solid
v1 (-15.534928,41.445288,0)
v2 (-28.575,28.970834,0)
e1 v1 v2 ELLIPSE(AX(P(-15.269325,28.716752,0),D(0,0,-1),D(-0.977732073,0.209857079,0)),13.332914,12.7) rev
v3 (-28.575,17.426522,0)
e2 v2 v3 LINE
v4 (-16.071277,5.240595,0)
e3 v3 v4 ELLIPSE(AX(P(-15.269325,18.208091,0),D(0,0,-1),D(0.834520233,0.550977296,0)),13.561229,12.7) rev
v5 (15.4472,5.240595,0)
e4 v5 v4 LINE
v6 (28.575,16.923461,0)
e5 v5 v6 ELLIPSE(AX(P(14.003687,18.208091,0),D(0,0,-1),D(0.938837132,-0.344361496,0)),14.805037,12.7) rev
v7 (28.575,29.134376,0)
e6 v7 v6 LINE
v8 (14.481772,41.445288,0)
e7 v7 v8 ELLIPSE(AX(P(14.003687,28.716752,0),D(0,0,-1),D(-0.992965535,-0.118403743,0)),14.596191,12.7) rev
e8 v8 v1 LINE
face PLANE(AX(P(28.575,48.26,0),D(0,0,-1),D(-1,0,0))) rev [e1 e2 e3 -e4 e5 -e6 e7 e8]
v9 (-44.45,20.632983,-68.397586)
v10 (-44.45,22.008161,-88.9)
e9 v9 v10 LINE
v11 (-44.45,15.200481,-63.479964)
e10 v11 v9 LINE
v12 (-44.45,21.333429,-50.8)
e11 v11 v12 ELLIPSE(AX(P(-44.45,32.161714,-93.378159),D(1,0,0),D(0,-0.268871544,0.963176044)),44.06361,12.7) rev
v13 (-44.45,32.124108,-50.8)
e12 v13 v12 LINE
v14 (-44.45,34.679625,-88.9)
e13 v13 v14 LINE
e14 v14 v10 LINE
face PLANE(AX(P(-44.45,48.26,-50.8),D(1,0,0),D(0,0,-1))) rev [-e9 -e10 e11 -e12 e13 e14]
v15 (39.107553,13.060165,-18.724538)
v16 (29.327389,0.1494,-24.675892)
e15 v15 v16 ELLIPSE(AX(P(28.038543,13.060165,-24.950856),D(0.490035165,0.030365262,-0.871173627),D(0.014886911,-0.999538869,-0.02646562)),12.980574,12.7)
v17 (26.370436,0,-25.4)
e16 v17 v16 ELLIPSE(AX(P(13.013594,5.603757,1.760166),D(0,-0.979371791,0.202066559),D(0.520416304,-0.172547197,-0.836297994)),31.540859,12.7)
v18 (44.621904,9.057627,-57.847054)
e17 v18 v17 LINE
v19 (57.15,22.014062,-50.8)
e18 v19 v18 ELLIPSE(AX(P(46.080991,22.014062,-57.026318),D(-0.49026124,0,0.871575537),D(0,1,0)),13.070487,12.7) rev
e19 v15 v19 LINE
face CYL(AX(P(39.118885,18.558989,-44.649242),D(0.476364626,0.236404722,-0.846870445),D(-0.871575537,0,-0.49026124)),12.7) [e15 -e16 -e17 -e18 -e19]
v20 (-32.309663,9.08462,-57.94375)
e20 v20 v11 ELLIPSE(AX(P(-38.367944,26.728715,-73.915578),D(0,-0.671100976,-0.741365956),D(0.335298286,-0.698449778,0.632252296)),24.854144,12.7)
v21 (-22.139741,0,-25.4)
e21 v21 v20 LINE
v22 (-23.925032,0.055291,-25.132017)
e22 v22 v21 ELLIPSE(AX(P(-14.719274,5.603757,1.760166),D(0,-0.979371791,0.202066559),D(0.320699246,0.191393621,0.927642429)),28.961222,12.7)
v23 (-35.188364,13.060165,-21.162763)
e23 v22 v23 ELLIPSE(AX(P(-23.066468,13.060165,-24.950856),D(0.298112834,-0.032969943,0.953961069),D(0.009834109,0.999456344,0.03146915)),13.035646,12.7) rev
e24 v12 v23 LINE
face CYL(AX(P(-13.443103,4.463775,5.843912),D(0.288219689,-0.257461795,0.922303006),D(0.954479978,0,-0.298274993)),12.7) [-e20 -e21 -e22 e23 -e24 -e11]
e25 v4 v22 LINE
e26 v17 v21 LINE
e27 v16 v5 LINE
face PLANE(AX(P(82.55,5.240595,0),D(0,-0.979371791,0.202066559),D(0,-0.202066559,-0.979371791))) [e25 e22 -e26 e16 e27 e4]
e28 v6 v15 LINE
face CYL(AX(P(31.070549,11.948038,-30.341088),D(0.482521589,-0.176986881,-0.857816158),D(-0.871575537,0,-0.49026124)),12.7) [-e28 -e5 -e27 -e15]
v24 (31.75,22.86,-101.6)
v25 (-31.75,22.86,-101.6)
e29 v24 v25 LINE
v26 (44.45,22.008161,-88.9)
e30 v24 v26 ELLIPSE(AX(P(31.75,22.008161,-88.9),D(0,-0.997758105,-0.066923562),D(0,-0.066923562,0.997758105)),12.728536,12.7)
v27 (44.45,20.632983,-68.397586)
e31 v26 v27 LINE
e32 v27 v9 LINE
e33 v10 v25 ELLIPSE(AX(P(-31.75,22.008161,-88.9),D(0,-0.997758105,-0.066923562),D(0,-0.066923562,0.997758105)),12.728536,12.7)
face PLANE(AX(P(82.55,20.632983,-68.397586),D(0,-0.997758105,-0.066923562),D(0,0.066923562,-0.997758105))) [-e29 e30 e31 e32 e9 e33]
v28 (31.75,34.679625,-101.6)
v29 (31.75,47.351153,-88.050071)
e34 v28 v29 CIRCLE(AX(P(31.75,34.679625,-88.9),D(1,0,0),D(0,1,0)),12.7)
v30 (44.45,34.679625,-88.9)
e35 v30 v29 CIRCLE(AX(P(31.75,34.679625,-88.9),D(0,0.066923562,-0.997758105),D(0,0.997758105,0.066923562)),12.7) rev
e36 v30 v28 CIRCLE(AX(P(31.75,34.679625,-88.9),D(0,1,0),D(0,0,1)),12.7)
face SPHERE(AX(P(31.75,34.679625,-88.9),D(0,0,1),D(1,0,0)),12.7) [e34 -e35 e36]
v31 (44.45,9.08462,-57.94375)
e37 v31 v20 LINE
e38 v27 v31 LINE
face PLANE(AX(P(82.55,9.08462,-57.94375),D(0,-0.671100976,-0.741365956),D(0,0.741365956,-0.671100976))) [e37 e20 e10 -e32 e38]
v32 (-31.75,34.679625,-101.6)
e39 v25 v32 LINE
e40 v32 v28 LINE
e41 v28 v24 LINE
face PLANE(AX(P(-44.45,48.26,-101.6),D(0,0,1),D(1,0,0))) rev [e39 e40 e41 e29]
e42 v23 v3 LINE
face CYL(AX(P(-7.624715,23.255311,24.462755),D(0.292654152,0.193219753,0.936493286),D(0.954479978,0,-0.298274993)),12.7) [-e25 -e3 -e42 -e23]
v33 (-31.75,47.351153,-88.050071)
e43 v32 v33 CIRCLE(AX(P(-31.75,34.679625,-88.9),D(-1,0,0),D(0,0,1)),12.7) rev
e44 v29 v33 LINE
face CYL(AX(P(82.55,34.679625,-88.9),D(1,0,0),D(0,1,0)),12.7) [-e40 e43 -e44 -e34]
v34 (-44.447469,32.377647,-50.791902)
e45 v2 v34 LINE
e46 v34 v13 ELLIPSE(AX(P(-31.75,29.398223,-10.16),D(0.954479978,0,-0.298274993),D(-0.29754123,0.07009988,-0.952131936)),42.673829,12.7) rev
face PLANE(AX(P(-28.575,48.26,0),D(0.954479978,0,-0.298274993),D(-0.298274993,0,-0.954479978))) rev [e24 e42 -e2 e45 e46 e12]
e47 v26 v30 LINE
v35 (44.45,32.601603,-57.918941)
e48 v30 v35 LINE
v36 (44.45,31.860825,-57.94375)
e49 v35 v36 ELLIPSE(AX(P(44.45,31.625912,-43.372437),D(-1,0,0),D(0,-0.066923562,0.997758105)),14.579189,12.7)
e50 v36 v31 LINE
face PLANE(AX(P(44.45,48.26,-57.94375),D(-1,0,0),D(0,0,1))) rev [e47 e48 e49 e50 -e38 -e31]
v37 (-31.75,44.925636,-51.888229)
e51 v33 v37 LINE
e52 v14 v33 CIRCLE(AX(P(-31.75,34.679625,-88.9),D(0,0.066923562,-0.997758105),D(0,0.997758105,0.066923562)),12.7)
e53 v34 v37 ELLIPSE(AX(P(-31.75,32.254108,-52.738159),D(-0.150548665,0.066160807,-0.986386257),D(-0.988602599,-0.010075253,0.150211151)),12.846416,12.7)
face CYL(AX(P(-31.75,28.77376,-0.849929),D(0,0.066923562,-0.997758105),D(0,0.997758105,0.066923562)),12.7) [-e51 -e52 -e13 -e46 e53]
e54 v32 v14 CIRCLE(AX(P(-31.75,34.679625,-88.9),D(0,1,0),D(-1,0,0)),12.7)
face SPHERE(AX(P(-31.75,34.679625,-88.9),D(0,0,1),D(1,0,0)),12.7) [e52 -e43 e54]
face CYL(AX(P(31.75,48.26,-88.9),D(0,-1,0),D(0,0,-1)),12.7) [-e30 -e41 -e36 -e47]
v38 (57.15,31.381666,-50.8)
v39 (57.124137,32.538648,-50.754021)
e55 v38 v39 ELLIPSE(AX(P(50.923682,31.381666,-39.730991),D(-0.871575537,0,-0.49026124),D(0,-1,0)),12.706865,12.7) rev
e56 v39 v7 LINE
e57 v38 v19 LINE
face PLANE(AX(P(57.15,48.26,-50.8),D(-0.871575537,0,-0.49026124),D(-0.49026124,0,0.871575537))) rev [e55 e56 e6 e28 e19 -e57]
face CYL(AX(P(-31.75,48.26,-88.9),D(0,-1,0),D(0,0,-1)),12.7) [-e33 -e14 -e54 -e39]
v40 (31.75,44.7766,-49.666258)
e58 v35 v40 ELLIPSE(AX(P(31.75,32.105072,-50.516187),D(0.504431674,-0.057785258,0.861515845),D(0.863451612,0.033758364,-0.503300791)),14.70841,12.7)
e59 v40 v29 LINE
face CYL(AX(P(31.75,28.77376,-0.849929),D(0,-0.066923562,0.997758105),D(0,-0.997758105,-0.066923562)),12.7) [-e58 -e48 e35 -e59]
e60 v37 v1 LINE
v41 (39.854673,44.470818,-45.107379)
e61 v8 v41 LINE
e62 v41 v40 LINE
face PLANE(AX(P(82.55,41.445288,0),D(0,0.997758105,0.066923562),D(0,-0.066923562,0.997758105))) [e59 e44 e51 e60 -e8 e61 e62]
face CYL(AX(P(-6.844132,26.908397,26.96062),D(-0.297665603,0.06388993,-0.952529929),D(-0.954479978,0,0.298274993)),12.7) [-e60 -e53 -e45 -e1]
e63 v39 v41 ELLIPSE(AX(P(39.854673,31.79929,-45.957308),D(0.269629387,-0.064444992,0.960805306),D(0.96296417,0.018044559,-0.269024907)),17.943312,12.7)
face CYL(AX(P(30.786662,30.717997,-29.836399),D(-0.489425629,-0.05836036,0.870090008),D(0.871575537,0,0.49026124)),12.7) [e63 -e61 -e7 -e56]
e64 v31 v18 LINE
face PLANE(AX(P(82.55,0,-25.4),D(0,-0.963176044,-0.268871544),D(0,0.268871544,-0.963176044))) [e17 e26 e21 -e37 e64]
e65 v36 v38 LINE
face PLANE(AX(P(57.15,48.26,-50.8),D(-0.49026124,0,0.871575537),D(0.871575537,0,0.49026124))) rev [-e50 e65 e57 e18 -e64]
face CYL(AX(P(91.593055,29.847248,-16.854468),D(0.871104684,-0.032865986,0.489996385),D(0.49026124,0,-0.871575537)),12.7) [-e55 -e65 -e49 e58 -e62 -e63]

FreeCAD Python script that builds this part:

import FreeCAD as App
import Part
import Sketcher
Q = App.Units.Quantity


def edges_at(feature, points):
    """Names of the edges that pass closest to the given points."""
    edges = feature.Shape.Edges
    near = lambda p: min(range(len(edges)), key=lambda i: edges[i].distToShape(Part.Vertex(*p))[0])
    return sorted({f"Edge{near(p) + 1}" for p in points})

doc = App.newDocument("Part")
params = doc.addObject("Spreadsheet::Sheet", "Params")
for row, (alias, value) in enumerate([
    ("sketch1_height", "2 in"),
    ("sketch1_width", "3.5 in"),
    ("sketch1_width2", "2.25 in"),
    ("sketch1_height2", "1.71875 in"),
    ("pad1_length", "1.9 in"),
    ("sketch2_width", "1 in"),
    ("pocket1_length", "10 in"),
    ("fillet_radius", "0.5 in"),
    ("fillet2_radius", "0.5 in"),
], start=1):
    params.set(f"A{row}", alias)
    params.set(f"B{row}", "=" + value)
    params.setAlias(f"B{row}", alias)

body = doc.addObject("PartDesign::Body", "Body")

sketch1 = body.newObject("Sketcher::SketchObject", "Sketch")
sketch1.AttachmentSupport = (doc.getObject("XZ_Plane"), [""])
sketch1.MapMode = "FlatFace"
sketch1.addGeometry(Part.LineSegment(App.Vector(44, -102, 0), App.Vector(-44, -102, 0)), False)
sketch1.addGeometry(Part.LineSegment(App.Vector(-44, -102, 0), App.Vector(-44, -51, 0)), False)
sketch1.addGeometry(Part.LineSegment(App.Vector(-44, -51, 0), App.Vector(-29, 0, 0)), False)
sketch1.addGeometry(Part.LineSegment(App.Vector(-29, 0, 0), App.Vector(29, 0, 0)), False)
sketch1.addGeometry(Part.LineSegment(App.Vector(29, 0, 0), App.Vector(57, -51, 0)), False)
sketch1.addGeometry(Part.LineSegment(App.Vector(57, -51, 0), App.Vector(44, -58, 0)), False)
sketch1.addGeometry(Part.LineSegment(App.Vector(44, -58, 0), App.Vector(44, -102, 0)), False)
sketch1.addConstraint(Sketcher.Constraint("Coincident", 0, 2, 1, 1))
sketch1.addConstraint(Sketcher.Constraint("Coincident", 1, 2, 2, 1))
sketch1.addConstraint(Sketcher.Constraint("Coincident", 2, 2, 3, 1))
sketch1.addConstraint(Sketcher.Constraint("Coincident", 3, 2, 4, 1))
sketch1.addConstraint(Sketcher.Constraint("Coincident", 4, 2, 5, 1))
sketch1.addConstraint(Sketcher.Constraint("Coincident", 5, 2, 6, 1))
sketch1.addConstraint(Sketcher.Constraint("Coincident", 6, 2, 0, 1))
sketch1.addConstraint(Sketcher.Constraint("Horizontal", 0))
sketch1.addConstraint(Sketcher.Constraint("Vertical", 1))
sketch1.addConstraint(Sketcher.Constraint("Horizontal", 3))
sketch1.addConstraint(Sketcher.Constraint("Vertical", 6))
sketch1.addConstraint(Sketcher.Constraint("Symmetric", 2, 2, 3, 2, -1, 1))
sketch1.addConstraint(Sketcher.Constraint("Perpendicular", 4, 5))
sketch1.addConstraint(Sketcher.Constraint("Horizontal", 1, 2, 4, 2))
sketch1.addConstraint(Sketcher.Constraint("DistanceY", 1, 1, 1, 2, Q("2 in")))
sketch1.addConstraint(Sketcher.Constraint("DistanceX", 0, 2, 0, 1, Q("3.5 in")))
sketch1.addConstraint(Sketcher.Constraint("DistanceY", 0, 2, -1, 1, Q("4 in")))
sketch1.addConstraint(Sketcher.Constraint("DistanceX", 1, 2, 4, 2, Q("4 in")))
sketch1.addConstraint(Sketcher.Constraint("DistanceX", 3, 1, 3, 2, Q("2.25 in")))
sketch1.addConstraint(Sketcher.Constraint("DistanceY", 6, 2, 6, 1, Q("1.71875 in")))
sketch1.setExpression("Constraints[14]", "Params.sketch1_height")
sketch1.setExpression("Constraints[15]", "Params.sketch1_width")
sketch1.setExpression("Constraints[18]", "Params.sketch1_width2")
sketch1.setExpression("Constraints[19]", "Params.sketch1_height2")
pad1 = body.newObject("PartDesign::Pad", "Pad")
pad1.Profile = sketch1
pad1.setExpression("Length", "Params.pad1_length")
pad1.Reversed = True

sketch2 = body.newObject("Sketcher::SketchObject", "Sketch001")
sketch2.AttachmentSupport = (doc.getObject("YZ_Plane"), [""])
sketch2.MapMode = "FlatFace"
sketch2.AttachmentOffset = App.Placement(App.Vector(0, 0, -1.75 * 25.4), App.Rotation())
sketch2.addGeometry(Part.LineSegment(App.Vector(64.417, -117.757, 0), App.Vector(-16.157, -117.757, 0)), False)
sketch2.addGeometry(Part.LineSegment(App.Vector(-16.157, -117.757, 0), App.Vector(-16.157, 16.157, 0)), False)
sketch2.addGeometry(Part.LineSegment(App.Vector(-16.157, 16.157, 0), App.Vector(64.417, 16.157, 0)), False)
sketch2.addGeometry(Part.LineSegment(App.Vector(64.417, 16.157, 0), App.Vector(64.417, -117.757, 0)), False)
sketch2.addGeometry(Part.LineSegment(App.Vector(48.26, -101.6, 0), App.Vector(41.445288, 0, 0)), False)
sketch2.addGeometry(Part.LineSegment(App.Vector(41.445288, 0, 0), App.Vector(5.240595, 0, 0)), False)
sketch2.addGeometry(Part.LineSegment(App.Vector(5.240595, 0, 0), App.Vector(0, -25.4, 0)), False)
sketch2.addGeometry(Part.LineSegment(App.Vector(0, -25.4, 0), App.Vector(9.08462, -57.94375, 0)), False)
sketch2.addGeometry(Part.LineSegment(App.Vector(9.08462, -57.94375, 0), App.Vector(20.632983, -68.397586, 0)), False)
sketch2.addGeometry(Part.LineSegment(App.Vector(20.632983, -68.397586, 0), App.Vector(22.86, -101.6, 0)), False)
sketch2.addGeometry(Part.LineSegment(App.Vector(22.86, -101.6, 0), App.Vector(48.26, -101.6, 0)), False)
sketch2.addConstraint(Sketcher.Constraint("Coincident", 0, 2, 1, 1))
sketch2.addConstraint(Sketcher.Constraint("Coincident", 1, 2, 2, 1))
sketch2.addConstraint(Sketcher.Constraint("Coincident", 2, 2, 3, 1))
sketch2.addConstraint(Sketcher.Constraint("Coincident", 3, 2, 0, 1))
sketch2.addConstraint(Sketcher.Constraint("Coincident", 4, 2, 5, 1))
sketch2.addConstraint(Sketcher.Constraint("Coincident", 5, 2, 6, 1))
sketch2.addConstraint(Sketcher.Constraint("Coincident", 6, 2, 7, 1))
sketch2.addConstraint(Sketcher.Constraint("Coincident", 7, 2, 8, 1))
sketch2.addConstraint(Sketcher.Constraint("Coincident", 8, 2, 9, 1))
sketch2.addConstraint(Sketcher.Constraint("Coincident", 9, 2, 10, 1))
sketch2.addConstraint(Sketcher.Constraint("Coincident", 10, 2, 4, 1))
sketch2.addConstraint(Sketcher.Constraint("Horizontal", 0))
sketch2.addConstraint(Sketcher.Constraint("Vertical", 1))
sketch2.addConstraint(Sketcher.Constraint("Horizontal", 2))
sketch2.addConstraint(Sketcher.Constraint("Vertical", 3))
sketch2.addConstraint(Sketcher.Constraint("Horizontal", 5))
sketch2.addConstraint(Sketcher.Constraint("Horizontal", 10))
sketch2.addConstraint(Sketcher.Constraint("PointOnObject", 4, 2, -1))
sketch2.addConstraint(Sketcher.Constraint("PointOnObject", 6, 2, -2))
sketch2.addConstraint(Sketcher.Constraint("Parallel", 4, 9))
sketch2.addConstraint(Sketcher.Constraint("DistanceX", 10, 1, 10, 2, Q("1 in")))
sketch2.addConstraint(Sketcher.Constraint("DistanceY", 6, 2, -1, 1, Q("1 in")))
sketch2.addConstraint(Sketcher.Constraint("DistanceY", 9, 2, -1, 1, Q("4 in")))
sketch2.addConstraint(Sketcher.Constraint("DistanceX", -1, 1, 9, 2, Q("0.9 in")))
sketch2.addConstraint(Sketcher.Constraint("DistanceY", 7, 2, -1, 1, Q("2.28125 in")))
sketch2.addConstraint(Sketcher.Constraint("DistanceX", 0, 2, 0, 1, 80.574))
sketch2.addConstraint(Sketcher.Constraint("DistanceY", 1, 1, 1, 2, 133.914))
sketch2.addConstraint(Sketcher.Constraint("DistanceX", 0, 2, -1, 1, 16.157))
sketch2.addConstraint(Sketcher.Constraint("DistanceY", 0, 2, -1, 1, 117.757))
sketch2.addConstraint(Sketcher.Constraint("Distance", 4, 101.828288))
sketch2.addConstraint(Sketcher.Constraint("DistanceX", 5, 2, 5, 1, 36.204694))
sketch2.addConstraint(Sketcher.Constraint("DistanceX", -1, 1, 7, 2, 9.08462))
sketch2.addConstraint(Sketcher.Constraint("DistanceX", 5, 2, 8, 2, 15.392389))
sketch2.setExpression("Constraints[20]", "Params.sketch2_width")
pocket1 = body.newObject("PartDesign::Pocket", "Pocket")
pocket1.Profile = sketch2
pocket1.setExpression("Length", "Params.pocket1_length")
pocket1.Midplane = True
doc.recompute()

fillet = body.newObject("PartDesign::Fillet", "Fillet")
fillet.Base = (pocket1, edges_at(pocket1, [
    (-44.45, 35.56, -101.6),
    (44.45, 35.56, -101.6),
    (0, 48.26, -101.6),
    (-44.45, 46.556, -76.2),
    (-36.513, 43.149, -25.4),
    (42.862, 43.149, -25.4),
    (50.8, 45.092, -54.372),
    (44.45, 46.796, -79.772),
]))
fillet.setExpression("Radius", "Params.fillet_radius")
doc.recompute()

fillet2 = body.newObject("PartDesign::Fillet", "Fillet001")
fillet2.Base = (fillet, edges_at(fillet, [
    (-40.481, 3.545, -38.1),
    (-32.544, 2.62, -12.7),
    (50.006, 3.545, -38.1),
    (35.719, 2.62, -12.7),
]))
fillet2.setExpression("Radius", "Params.fillet2_radius")

doc.recompute()
